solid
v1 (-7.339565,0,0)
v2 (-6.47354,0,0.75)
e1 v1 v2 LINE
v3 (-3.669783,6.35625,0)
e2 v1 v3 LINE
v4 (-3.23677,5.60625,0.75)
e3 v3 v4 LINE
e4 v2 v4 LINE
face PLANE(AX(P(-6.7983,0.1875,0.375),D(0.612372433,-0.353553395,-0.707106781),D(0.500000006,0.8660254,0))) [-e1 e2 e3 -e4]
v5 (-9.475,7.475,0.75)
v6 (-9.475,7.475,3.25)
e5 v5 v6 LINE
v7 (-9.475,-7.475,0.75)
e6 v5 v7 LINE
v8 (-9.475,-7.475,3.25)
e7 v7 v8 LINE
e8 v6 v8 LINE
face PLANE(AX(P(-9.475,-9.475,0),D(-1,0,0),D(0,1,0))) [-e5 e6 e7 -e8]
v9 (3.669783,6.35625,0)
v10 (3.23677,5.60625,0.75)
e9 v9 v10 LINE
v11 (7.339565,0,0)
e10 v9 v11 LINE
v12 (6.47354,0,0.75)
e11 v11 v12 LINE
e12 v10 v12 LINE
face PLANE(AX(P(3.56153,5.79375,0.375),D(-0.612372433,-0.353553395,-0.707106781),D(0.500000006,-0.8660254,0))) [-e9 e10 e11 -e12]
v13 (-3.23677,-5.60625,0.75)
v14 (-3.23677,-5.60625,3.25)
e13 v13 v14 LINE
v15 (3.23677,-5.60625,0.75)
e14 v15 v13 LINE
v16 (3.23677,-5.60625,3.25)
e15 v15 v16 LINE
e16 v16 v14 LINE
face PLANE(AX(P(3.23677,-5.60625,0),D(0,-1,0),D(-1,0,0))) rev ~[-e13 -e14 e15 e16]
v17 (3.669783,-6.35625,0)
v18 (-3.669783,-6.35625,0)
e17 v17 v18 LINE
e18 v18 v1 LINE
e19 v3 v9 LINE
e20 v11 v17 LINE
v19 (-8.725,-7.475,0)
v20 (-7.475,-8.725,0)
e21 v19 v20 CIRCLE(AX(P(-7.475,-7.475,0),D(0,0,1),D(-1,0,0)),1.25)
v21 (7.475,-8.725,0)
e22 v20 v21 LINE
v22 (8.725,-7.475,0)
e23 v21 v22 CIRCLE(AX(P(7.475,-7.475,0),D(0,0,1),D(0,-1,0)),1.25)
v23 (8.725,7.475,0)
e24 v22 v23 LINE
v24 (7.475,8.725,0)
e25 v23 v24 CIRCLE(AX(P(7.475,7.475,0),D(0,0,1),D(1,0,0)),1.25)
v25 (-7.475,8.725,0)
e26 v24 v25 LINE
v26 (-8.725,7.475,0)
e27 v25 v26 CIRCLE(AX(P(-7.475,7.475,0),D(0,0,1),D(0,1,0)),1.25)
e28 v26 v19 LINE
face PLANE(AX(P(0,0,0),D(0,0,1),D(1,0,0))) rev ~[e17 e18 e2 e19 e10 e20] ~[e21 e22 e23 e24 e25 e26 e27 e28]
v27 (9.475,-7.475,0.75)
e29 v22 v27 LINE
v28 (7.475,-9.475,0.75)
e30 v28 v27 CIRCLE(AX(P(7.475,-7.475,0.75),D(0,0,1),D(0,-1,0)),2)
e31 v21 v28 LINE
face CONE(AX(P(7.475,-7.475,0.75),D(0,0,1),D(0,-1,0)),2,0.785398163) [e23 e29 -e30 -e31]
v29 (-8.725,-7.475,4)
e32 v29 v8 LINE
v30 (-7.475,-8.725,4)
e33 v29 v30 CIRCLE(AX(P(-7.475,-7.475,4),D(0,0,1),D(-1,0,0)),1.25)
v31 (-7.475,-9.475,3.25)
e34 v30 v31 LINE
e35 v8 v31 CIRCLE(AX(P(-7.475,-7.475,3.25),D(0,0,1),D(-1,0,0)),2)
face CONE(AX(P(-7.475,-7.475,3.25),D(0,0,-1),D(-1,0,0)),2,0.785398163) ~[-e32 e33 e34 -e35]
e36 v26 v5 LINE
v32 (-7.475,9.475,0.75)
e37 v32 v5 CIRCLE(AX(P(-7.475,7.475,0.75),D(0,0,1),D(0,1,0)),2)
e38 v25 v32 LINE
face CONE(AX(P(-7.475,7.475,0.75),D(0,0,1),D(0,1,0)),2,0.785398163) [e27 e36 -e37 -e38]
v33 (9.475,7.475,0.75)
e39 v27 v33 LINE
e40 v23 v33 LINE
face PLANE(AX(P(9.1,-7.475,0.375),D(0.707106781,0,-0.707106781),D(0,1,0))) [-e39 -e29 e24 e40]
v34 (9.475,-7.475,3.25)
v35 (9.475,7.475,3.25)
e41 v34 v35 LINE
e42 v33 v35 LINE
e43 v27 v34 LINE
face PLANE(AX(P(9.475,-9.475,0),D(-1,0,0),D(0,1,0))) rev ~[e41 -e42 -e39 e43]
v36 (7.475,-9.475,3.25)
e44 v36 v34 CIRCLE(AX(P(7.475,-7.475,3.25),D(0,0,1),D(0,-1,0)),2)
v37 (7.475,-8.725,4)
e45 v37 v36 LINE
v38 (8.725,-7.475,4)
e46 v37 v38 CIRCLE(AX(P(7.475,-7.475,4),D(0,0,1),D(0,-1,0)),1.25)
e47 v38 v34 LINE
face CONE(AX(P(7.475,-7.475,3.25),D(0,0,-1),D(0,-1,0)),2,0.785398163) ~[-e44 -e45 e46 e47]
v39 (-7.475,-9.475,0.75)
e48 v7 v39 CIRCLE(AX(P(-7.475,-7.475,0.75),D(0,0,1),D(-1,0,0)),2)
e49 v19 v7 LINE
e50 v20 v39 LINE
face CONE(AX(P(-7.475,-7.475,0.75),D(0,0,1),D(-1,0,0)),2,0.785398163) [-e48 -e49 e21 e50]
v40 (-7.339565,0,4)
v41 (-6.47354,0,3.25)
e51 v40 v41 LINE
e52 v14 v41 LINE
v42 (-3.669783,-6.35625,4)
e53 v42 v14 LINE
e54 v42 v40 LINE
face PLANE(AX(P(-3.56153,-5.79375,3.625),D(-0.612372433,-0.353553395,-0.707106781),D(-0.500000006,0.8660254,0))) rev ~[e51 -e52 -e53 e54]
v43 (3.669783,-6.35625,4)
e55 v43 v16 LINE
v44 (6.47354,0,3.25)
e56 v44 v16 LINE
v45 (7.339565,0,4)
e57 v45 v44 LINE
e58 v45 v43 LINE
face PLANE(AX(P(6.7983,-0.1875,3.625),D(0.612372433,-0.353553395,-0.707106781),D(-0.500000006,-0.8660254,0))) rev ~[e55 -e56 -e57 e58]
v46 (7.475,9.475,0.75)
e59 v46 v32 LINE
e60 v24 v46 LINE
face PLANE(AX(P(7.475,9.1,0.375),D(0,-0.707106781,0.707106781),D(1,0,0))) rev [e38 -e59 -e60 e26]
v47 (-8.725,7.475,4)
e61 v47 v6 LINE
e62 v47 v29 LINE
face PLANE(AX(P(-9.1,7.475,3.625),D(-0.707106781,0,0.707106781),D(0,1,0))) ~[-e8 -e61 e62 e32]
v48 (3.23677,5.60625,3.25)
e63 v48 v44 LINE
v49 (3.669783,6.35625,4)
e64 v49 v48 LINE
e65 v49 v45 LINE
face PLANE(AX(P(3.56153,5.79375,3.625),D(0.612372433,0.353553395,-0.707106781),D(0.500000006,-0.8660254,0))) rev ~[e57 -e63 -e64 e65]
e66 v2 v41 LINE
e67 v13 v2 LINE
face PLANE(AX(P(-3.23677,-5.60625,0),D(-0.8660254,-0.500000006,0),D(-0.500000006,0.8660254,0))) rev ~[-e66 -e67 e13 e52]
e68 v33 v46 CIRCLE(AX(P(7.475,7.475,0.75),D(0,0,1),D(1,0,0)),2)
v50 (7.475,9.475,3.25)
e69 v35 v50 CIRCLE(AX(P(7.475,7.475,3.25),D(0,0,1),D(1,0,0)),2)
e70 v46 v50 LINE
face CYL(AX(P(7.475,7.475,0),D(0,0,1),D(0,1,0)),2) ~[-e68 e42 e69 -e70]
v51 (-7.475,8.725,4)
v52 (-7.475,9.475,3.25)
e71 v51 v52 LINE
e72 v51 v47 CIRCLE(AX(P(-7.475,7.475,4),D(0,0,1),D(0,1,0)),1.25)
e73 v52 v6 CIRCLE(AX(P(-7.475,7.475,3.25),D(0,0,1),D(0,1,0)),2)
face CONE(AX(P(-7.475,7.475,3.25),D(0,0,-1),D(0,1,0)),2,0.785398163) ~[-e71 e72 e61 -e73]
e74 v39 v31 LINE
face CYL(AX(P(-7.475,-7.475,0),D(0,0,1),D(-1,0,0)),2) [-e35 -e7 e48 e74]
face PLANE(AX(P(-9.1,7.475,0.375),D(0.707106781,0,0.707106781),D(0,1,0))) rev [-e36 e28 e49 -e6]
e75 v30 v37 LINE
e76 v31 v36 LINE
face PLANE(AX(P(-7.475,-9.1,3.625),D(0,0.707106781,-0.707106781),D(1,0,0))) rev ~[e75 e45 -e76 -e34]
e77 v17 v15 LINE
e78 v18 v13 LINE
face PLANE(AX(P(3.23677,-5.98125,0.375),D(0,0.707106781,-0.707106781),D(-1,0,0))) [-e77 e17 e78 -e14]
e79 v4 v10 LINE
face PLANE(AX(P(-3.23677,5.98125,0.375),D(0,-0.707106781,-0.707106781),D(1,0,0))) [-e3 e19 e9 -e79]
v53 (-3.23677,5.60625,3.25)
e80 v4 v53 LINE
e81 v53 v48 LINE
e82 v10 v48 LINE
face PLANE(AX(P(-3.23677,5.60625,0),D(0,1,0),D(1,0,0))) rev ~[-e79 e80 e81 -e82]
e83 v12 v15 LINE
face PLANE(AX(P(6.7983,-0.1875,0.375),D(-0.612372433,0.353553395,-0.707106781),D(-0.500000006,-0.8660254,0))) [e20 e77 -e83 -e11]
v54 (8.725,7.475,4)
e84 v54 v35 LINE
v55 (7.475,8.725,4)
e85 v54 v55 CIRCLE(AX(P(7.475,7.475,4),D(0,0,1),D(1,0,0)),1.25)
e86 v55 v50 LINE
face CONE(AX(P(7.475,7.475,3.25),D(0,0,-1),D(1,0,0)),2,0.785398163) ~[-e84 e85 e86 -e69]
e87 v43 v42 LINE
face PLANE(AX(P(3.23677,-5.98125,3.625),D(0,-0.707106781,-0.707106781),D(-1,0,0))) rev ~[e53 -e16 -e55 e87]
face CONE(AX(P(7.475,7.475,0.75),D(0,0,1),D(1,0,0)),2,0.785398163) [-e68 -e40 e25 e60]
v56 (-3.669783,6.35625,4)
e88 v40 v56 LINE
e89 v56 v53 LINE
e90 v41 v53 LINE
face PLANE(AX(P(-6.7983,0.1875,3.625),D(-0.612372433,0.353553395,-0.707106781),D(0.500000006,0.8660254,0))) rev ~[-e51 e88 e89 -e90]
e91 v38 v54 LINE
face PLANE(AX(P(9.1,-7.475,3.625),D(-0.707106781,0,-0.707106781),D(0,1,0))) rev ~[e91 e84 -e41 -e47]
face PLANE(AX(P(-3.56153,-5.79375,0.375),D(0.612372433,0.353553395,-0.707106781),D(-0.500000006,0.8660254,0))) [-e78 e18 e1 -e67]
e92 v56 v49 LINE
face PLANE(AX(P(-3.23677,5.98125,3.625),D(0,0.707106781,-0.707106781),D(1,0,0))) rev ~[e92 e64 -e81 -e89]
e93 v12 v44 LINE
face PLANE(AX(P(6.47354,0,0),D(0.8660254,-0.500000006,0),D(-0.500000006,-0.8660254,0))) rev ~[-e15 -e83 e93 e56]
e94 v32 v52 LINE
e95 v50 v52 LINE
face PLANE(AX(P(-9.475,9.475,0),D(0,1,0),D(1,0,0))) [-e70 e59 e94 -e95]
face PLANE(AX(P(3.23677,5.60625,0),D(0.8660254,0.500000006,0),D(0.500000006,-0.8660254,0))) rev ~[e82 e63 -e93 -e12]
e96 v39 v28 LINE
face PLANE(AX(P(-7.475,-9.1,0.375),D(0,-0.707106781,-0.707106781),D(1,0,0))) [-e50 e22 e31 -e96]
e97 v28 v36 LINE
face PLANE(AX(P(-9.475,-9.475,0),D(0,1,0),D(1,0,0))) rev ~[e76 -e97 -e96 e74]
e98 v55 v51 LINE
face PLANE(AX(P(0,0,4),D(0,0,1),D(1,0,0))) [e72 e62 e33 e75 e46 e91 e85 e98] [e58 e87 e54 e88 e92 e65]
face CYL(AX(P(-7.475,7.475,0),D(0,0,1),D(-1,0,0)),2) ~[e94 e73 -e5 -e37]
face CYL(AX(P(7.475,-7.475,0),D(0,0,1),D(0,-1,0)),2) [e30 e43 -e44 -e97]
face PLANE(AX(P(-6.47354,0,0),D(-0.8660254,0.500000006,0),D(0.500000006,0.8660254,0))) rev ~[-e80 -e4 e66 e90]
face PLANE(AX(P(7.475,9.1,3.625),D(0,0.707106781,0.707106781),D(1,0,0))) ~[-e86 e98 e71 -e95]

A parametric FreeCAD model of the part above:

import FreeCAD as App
import Part
import Sketcher
Q = App.Units.Quantity


def edges_at(feature, points):
    """Names of the edges that pass closest to the given points."""
    edges = feature.Shape.Edges
    near = lambda p: min(range(len(edges)), key=lambda i: edges[i].distToShape(Part.Vertex(*p))[0])
    return sorted({f"Edge{near(p) + 1}" for p in points})


def add_polygon(sketch, points):
    """Adds a closed chain of lines whose ends are joined by coincident constraints."""
    first, n = sketch.GeometryCount, len(points)
    for a, b in zip(points, points[1:] + points[:1]):
        sketch.addGeometry(Part.LineSegment(App.Vector(*a, 0), App.Vector(*b, 0)), False)
    for i in range(n):
        sketch.addConstraint(Sketcher.Constraint("Coincident", first + i, 2, first + (i + 1) % n, 1))

doc = App.newDocument("Part")
params = doc.addObject("Spreadsheet::Sheet", "Params")
for row, (alias, value) in enumerate([
    ("sketch1_width", "18.95 mm"),
    ("pad1_length", "4 mm"),
    ("fillet_radius", "2 mm"),
    ("chamfer_size", "0.75 mm"),
], start=1):
    params.set(f"A{row}", alias)
    params.set(f"B{row}", "=" + value)
    params.setAlias(f"B{row}", alias)

body = doc.addObject("PartDesign::Body", "Body")

# Sketch on XY plane
sketch1 = body.newObject("Sketcher::SketchObject", "Sketch")
sketch1.AttachmentSupport = (doc.getObject("XY_Plane"), [""])
sketch1.MapMode = "FlatFace"
add_polygon(sketch1, [(-9.475, 9.475), (-9.475, -9.475), (9.475, -9.475), (9.475, 9.475)])  # lines 0-3
add_polygon(sketch1, [(-3.23677, -5.60625), (-6.47354, 0), (-3.23677, 5.60625), (3.23677, 5.60625), (6.47354, 0), (3.23677, -5.60625)])  # lines 4-9
sketch1.addConstraint([
    Sketcher.Constraint("Vertical", 0),
    Sketcher.Constraint("Horizontal", 1),
    Sketcher.Constraint("Vertical", 2),
    Sketcher.Constraint("Horizontal", 3),
    Sketcher.Constraint("Horizontal", 6),
    Sketcher.Constraint("Horizontal", 9),
    Sketcher.Constraint("Symmetric", 0, 2, 2, 2, -1, 1),
    Sketcher.Constraint("Symmetric", 4, 2, 7, 2, -1, 1),
    Sketcher.Constraint("Symmetric", 5, 2, 8, 2, -1, 1),
    Sketcher.Constraint("PointOnObject", 4, 2, -1),
    Sketcher.Constraint("Parallel", 4, 7),
    Sketcher.Constraint("Vertical", 6, 2, 8, 2),
    Sketcher.Constraint("Equal", 3, 0),
    Sketcher.Constraint("Angle", 4, Q("120 deg")),
    Sketcher.Constraint("DistanceX", 1, 1, 1, 2, 18.95),
    Sketcher.Constraint("DistanceX", 6, 1, 6, 2, 6.47354),
    Sketcher.Constraint("DistanceY", 8, 2, 6, 2, 11.2125),
])
sketch1.setExpression("Constraints[24]", "Params.sketch1_width")
pad1 = body.newObject("PartDesign::Pad", "Pad")
pad1.Profile = sketch1
pad1.setExpression("Length", "Params.pad1_length")
doc.recompute()

fillet = body.newObject("PartDesign::Fillet", "Fillet")
fillet.Base = (pad1, edges_at(pad1, [
    (9.475, -9.475, 2),
    (9.475, 9.475, 2),
    (-9.475, -9.475, 2),
    (-9.475, 9.475, 2),
]))
fillet.setExpression("Radius", "Params.fillet_radius")
doc.recompute()

chamfer = body.newObject("PartDesign::Chamfer", "Chamfer")
chamfer.Base = (fillet, edges_at(fillet, [
    (9.475, 0, 4),
    (8.889, -8.889, 4),
    (8.889, 8.889, 4),
    (0, -9.475, 4),
    (0, 9.475, 4),
    (-8.889, -8.889, 4),
    (-8.889, 8.889, 4),
    (-9.475, 0, 4),
    (-4.855, 2.803, 4),
    (0, 5.606, 4),
    (4.855, 2.803, 4),
    (4.855, -2.803, 4),
    (0, -5.606, 4),
    (-4.855, -2.803, 4),
    (9.475, 0, 0),
    (8.889, -8.889, 0),
    (8.889, 8.889, 0),
    (0, -9.475, 0),
    (0, 9.475, 0),
    (-8.889, -8.889, 0),
    (-8.889, 8.889, 0),
    (-9.475, 0, 0),
    (-4.855, 2.803, 0),
    (0, 5.606, 0),
    (4.855, 2.803, 0),
    (4.855, -2.803, 0),
    (0, -5.606, 0),
    (-4.855, -2.803, 0),
]))
chamfer.setExpression("Size", "Params.chamfer_size")

doc.recompute()
